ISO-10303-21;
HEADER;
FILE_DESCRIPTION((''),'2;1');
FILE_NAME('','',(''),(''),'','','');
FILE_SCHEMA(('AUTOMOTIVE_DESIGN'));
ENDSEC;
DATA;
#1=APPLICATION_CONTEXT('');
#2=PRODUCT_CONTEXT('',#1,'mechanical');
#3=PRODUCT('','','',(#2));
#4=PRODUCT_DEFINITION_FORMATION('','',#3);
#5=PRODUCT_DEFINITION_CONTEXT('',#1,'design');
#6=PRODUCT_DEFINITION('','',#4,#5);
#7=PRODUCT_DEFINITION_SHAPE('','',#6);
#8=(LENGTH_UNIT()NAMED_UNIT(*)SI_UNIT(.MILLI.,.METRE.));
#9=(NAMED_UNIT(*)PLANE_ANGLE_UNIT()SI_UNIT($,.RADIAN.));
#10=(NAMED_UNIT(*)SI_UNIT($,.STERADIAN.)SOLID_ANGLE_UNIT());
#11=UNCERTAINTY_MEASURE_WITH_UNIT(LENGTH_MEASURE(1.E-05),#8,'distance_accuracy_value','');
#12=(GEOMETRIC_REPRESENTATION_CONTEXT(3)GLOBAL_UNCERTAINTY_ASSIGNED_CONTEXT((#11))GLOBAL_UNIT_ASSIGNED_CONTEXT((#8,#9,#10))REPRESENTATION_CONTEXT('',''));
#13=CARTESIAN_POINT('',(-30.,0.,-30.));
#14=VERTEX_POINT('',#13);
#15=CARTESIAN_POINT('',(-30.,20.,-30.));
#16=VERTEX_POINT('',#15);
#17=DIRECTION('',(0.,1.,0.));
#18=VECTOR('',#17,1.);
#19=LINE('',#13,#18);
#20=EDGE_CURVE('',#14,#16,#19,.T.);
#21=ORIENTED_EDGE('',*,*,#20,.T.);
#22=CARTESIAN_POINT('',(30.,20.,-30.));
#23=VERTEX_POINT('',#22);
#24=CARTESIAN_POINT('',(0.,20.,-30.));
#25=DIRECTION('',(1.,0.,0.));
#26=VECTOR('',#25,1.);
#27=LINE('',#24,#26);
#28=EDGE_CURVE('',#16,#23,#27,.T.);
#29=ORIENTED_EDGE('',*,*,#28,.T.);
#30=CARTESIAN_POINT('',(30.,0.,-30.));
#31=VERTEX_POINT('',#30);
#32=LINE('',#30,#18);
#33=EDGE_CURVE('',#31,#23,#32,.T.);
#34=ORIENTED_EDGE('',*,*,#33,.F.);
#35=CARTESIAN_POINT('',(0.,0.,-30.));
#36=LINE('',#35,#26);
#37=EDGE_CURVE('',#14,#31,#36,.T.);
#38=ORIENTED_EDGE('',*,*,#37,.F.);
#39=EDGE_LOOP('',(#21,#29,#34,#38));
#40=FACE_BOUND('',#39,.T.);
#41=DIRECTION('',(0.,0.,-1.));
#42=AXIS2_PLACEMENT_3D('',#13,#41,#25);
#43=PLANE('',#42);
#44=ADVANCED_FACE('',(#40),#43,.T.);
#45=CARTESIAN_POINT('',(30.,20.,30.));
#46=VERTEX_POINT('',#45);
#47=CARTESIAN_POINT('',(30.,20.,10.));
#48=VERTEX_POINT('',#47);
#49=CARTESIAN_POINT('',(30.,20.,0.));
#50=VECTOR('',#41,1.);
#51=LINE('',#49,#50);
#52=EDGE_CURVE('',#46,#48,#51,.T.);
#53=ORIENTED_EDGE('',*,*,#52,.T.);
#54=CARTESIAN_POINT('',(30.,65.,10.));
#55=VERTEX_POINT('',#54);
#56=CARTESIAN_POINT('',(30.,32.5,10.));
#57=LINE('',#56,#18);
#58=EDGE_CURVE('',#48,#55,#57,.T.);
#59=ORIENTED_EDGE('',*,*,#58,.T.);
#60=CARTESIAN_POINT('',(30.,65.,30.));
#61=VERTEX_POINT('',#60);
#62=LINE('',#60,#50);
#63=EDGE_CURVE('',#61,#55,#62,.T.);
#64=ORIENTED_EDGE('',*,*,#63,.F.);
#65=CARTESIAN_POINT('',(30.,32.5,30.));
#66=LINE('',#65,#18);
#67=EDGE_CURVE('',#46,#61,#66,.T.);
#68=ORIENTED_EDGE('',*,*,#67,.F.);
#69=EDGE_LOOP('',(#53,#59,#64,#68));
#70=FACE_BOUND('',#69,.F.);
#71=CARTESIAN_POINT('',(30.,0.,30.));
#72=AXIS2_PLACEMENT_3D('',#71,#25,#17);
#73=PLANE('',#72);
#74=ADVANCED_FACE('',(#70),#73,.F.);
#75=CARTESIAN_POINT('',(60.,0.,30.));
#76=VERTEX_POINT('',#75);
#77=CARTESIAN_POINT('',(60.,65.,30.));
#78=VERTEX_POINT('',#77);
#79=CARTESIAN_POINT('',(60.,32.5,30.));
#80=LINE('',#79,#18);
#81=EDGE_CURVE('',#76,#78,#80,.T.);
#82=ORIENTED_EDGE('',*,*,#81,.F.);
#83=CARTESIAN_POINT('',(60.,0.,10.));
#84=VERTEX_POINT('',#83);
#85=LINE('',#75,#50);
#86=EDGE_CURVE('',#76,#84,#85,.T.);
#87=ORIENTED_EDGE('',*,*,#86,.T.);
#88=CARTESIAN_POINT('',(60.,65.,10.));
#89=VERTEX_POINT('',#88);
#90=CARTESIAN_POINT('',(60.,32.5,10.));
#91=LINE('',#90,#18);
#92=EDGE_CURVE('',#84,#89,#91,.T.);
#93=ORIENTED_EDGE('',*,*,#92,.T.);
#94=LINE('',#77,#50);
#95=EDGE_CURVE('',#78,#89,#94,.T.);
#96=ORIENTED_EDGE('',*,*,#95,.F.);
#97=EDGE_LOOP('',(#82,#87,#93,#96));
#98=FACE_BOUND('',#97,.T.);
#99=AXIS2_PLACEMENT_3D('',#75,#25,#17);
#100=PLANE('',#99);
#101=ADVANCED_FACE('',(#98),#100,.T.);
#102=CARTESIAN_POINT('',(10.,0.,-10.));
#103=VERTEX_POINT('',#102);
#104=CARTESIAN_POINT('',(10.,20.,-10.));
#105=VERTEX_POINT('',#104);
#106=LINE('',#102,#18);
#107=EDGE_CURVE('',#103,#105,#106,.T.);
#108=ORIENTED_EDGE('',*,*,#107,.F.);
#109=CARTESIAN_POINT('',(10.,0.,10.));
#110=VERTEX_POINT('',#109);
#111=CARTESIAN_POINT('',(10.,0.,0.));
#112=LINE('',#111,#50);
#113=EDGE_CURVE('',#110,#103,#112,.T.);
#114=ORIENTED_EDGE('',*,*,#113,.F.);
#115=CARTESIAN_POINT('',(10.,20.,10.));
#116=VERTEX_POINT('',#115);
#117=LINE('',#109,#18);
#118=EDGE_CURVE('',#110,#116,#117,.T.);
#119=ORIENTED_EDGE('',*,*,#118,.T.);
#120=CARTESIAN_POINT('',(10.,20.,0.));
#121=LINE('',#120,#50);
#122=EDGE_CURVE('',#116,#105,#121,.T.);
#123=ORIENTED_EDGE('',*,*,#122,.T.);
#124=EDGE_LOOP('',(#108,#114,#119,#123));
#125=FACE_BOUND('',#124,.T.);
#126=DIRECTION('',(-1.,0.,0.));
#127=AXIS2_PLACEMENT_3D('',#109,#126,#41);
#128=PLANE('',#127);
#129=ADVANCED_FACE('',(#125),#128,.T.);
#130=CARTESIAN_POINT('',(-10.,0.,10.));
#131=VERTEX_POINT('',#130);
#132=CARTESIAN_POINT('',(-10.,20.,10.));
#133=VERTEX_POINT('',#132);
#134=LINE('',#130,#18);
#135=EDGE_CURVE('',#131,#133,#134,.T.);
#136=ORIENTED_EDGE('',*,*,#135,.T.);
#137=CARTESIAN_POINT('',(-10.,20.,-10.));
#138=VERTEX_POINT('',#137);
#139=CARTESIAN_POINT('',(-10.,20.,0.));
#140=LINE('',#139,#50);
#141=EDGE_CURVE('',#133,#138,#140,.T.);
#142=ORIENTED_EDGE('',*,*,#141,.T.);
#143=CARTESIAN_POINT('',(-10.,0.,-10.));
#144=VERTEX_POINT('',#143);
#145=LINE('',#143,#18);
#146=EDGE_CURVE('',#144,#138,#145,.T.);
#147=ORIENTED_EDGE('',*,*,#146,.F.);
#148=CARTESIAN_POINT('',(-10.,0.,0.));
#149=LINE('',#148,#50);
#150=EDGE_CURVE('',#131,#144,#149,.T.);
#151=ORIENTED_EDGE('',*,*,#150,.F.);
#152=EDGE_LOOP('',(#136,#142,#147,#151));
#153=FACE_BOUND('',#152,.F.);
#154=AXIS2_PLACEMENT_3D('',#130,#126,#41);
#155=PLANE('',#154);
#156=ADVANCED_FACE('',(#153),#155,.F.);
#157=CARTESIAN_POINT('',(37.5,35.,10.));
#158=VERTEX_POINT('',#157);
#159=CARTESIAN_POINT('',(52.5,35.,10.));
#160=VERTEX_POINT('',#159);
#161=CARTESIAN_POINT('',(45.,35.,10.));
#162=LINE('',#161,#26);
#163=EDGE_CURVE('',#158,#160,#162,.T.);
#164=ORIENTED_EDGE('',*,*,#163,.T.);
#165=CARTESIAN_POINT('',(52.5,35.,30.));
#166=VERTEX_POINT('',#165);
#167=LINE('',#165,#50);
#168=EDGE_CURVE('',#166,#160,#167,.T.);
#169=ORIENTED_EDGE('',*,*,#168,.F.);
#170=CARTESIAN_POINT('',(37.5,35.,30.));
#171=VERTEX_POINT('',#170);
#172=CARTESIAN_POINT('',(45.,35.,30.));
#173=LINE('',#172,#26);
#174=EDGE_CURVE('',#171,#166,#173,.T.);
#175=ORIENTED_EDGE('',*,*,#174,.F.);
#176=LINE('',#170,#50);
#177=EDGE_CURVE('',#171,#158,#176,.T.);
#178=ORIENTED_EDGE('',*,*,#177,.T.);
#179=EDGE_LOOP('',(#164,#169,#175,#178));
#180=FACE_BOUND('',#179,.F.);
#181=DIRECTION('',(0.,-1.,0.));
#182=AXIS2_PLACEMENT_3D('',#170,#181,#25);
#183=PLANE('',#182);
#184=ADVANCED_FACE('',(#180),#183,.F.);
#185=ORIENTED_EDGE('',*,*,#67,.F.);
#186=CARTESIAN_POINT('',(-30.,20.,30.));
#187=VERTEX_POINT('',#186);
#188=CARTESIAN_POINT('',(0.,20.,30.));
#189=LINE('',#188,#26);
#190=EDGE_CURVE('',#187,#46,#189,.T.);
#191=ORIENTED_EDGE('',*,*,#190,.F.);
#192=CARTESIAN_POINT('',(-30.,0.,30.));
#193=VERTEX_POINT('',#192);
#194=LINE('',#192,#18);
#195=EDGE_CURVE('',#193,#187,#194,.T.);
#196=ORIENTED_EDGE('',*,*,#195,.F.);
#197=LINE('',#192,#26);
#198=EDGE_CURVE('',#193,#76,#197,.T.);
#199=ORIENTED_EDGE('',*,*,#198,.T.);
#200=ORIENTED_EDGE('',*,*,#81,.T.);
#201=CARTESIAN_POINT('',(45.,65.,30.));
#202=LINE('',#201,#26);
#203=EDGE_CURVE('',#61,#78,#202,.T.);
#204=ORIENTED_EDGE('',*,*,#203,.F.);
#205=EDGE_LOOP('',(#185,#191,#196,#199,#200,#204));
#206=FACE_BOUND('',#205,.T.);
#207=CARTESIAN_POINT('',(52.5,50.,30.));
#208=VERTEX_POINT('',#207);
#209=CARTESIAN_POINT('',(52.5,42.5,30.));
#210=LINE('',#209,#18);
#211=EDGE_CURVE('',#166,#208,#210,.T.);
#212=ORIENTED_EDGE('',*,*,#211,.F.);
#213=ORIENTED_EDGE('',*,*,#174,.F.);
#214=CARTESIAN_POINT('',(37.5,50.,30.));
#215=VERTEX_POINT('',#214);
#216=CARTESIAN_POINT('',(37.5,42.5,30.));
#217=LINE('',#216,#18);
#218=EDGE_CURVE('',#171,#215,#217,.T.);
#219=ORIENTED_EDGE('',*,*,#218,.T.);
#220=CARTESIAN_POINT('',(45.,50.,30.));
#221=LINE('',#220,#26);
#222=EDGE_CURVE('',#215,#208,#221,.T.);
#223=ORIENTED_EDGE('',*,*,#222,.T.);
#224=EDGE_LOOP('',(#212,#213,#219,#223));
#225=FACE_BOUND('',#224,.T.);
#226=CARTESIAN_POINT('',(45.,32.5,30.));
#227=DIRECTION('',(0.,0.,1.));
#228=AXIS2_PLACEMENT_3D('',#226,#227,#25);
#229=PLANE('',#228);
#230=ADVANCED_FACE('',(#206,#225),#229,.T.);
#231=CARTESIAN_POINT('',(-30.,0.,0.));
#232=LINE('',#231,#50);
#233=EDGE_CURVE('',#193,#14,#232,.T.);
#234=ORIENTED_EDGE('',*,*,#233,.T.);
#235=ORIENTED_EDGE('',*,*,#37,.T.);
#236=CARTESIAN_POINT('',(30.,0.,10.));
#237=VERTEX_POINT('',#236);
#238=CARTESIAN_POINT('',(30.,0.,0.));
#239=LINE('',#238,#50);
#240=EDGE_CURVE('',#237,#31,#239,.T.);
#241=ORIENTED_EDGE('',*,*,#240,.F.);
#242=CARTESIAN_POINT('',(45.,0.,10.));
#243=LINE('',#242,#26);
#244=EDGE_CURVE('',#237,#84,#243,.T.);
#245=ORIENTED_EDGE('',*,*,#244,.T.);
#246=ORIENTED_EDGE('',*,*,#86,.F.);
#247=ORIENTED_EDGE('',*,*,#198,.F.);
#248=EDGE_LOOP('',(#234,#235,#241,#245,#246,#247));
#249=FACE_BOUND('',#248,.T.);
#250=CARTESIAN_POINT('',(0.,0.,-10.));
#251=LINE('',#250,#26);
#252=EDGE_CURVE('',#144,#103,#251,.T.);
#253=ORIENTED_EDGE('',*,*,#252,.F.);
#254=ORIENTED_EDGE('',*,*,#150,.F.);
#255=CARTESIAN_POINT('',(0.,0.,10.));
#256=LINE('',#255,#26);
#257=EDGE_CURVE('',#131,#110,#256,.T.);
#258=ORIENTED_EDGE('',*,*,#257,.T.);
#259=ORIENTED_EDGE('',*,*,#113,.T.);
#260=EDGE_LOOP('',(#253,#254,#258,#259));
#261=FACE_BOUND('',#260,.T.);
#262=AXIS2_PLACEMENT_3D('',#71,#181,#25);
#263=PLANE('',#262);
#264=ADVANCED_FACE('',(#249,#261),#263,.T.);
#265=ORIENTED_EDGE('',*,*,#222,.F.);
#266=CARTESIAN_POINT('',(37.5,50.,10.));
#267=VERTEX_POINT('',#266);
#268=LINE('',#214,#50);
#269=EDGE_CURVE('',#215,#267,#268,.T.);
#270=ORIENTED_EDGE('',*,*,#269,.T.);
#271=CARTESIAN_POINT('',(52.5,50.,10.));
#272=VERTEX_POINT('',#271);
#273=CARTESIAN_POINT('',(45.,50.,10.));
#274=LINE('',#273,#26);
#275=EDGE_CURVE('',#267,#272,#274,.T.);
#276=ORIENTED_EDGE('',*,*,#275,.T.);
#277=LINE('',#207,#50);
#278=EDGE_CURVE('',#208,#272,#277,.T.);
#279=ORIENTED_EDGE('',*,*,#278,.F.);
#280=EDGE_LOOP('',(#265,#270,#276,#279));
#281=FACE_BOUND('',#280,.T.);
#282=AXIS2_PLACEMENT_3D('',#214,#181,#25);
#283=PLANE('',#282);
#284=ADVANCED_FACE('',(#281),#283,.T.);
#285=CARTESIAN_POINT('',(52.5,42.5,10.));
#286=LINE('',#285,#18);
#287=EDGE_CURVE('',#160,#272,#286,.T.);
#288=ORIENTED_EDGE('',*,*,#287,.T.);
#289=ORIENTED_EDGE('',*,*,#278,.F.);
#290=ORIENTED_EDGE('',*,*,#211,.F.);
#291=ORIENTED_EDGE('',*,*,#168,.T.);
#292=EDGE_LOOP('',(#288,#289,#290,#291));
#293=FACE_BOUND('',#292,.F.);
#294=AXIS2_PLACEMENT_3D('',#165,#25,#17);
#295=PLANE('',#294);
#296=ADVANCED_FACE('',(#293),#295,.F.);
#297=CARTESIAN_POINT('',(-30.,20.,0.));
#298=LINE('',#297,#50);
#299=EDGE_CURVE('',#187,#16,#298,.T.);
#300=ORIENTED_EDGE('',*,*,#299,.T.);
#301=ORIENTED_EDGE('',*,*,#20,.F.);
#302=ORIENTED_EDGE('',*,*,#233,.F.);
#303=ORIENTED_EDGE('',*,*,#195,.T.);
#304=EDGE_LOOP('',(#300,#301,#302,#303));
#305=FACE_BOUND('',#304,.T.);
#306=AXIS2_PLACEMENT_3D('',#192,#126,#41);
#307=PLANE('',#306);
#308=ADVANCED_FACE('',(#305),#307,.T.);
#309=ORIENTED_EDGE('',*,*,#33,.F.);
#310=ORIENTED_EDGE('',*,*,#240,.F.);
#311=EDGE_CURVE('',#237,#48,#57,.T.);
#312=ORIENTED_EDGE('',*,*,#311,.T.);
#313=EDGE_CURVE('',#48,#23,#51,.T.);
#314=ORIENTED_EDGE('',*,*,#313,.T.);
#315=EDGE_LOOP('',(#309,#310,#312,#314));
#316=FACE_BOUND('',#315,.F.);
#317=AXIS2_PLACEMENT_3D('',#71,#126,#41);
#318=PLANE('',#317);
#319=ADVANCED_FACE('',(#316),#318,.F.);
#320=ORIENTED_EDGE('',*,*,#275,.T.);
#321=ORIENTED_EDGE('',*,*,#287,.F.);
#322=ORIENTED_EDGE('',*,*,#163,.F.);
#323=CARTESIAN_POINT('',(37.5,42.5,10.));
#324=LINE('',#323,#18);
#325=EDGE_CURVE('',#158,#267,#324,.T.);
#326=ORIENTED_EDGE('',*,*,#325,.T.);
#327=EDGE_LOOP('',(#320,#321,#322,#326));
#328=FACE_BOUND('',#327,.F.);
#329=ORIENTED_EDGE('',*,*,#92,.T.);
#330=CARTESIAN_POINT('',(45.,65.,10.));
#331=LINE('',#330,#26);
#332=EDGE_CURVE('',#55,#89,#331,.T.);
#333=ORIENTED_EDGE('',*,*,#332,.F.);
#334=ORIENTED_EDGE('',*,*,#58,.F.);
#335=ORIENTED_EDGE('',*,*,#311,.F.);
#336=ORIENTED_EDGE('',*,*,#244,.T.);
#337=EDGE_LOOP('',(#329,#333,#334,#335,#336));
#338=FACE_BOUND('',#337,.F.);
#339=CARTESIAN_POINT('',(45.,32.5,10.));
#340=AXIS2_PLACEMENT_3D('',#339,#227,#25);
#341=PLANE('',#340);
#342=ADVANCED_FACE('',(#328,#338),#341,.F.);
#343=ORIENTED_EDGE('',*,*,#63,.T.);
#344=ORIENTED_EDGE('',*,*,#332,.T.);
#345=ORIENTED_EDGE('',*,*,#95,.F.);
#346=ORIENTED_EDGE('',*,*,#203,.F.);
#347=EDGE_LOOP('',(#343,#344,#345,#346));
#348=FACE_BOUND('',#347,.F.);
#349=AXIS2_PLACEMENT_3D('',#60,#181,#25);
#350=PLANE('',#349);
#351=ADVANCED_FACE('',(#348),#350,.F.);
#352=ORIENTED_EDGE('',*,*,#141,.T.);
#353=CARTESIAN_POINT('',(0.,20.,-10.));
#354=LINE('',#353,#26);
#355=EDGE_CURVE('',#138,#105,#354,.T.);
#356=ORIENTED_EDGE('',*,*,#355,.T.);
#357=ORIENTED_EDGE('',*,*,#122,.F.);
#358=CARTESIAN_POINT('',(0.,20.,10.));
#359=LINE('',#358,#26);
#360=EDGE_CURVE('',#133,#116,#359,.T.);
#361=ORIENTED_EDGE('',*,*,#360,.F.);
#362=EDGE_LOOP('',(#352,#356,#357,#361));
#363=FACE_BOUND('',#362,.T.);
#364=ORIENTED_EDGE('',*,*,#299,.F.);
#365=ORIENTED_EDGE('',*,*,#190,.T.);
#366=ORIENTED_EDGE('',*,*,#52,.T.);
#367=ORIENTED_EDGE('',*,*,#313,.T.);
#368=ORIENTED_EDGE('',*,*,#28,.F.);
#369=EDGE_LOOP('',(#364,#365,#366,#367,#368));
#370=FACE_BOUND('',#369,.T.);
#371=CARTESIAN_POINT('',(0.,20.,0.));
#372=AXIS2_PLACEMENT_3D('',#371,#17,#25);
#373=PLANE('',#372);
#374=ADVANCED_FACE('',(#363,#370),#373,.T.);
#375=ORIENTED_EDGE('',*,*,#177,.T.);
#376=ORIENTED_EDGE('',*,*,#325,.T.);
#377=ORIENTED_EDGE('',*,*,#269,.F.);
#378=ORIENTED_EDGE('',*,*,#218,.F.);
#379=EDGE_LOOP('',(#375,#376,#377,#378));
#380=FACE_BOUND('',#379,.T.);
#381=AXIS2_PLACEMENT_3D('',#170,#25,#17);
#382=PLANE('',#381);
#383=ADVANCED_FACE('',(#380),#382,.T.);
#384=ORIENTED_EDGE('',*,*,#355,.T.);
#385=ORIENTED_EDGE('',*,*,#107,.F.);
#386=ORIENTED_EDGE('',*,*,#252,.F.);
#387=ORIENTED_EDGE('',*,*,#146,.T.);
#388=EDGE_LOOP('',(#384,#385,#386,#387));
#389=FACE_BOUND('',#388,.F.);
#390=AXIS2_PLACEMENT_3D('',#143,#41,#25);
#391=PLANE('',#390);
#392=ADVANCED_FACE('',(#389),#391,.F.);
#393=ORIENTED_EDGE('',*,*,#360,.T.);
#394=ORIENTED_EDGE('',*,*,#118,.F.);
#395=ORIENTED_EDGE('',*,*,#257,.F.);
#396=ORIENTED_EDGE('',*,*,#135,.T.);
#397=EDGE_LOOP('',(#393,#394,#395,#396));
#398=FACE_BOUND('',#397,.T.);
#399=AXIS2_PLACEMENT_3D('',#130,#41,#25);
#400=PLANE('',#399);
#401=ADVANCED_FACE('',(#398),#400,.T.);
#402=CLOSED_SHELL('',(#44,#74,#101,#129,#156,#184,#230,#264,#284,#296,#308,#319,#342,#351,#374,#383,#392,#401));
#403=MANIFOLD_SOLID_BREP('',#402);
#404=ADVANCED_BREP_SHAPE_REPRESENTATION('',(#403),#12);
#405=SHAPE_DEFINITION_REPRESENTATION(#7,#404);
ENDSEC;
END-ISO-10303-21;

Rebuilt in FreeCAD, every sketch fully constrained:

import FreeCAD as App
import Part
import Sketcher
from FreeCAD import Vector
Q = App.Units.Quantity

doc = App.newDocument("Part")
body = doc.addObject("PartDesign::Body", "Body")

sketch1 = body.newObject("Sketcher::SketchObject", "Sketch")
sketch1.AttachmentSupport = (doc.getObject("XZ_Plane"), [""])
sketch1.MapMode = "FlatFace"
sketch1.addGeometry([
    Part.LineSegment(Vector(-30, -30, 0), Vector(-30, 30, 0)),
    Part.LineSegment(Vector(-30, 30, 0), Vector(30, 30, 0)),
    Part.LineSegment(Vector(30, 30, 0), Vector(30, -30, 0)),
    Part.LineSegment(Vector(30, -30, 0), Vector(-30, -30, 0)),
    Part.LineSegment(Vector(10, 10, 0), Vector(-10, 10, 0)),
    Part.LineSegment(Vector(-10, 10, 0), Vector(-10, -10, 0)),
    Part.LineSegment(Vector(-10, -10, 0), Vector(10, -10, 0)),
    Part.LineSegment(Vector(10, -10, 0), Vector(10, 10, 0)),
], False)
sketch1.addConstraint([
    Sketcher.Constraint("Coincident", 0, 2, 1, 1),
    Sketcher.Constraint("Coincident", 1, 2, 2, 1),
    Sketcher.Constraint("Coincident", 2, 2, 3, 1),
    Sketcher.Constraint("Coincident", 3, 2, 0, 1),
    Sketcher.Constraint("Coincident", 4, 2, 5, 1),
    Sketcher.Constraint("Coincident", 5, 2, 6, 1),
    Sketcher.Constraint("Coincident", 6, 2, 7, 1),
    Sketcher.Constraint("Coincident", 7, 2, 4, 1),
    Sketcher.Constraint("Vertical", 0),
    Sketcher.Constraint("Horizontal", 1),
    Sketcher.Constraint("Vertical", 2),
    Sketcher.Constraint("Horizontal", 3),
    Sketcher.Constraint("Horizontal", 4),
    Sketcher.Constraint("Vertical", 5),
    Sketcher.Constraint("Horizontal", 6),
    Sketcher.Constraint("Vertical", 7),
    Sketcher.Constraint("Symmetric", 0, 2, 2, 2, -1, 1),
    Sketcher.Constraint("Symmetric", 4, 2, 6, 2, -1, 1),
    Sketcher.Constraint("Equal", 3, 0),
    Sketcher.Constraint("Equal", 6, 5),
    Sketcher.Constraint("DistanceX", 1, 1, 1, 2, Q("60 mm")),
    Sketcher.Constraint("DistanceX", 4, 2, 4, 1, Q("20 mm")),
])
pad1 = body.newObject("PartDesign::Pad", "Pad")
pad1.Profile = sketch1
pad1.Length = 20
pad1.Reversed = True

sketch2 = body.newObject("Sketcher::SketchObject", "Sketch001")
sketch2.AttachmentSupport = (doc.getObject("XY_Plane"), [""])
sketch2.MapMode = "FlatFace"
sketch2.AttachmentOffset = App.Placement(Vector(0, 0, 30), App.Rotation())
sketch2.addGeometry([
    Part.LineSegment(Vector(30, 65, 0), Vector(30, 0, 0)),
    Part.LineSegment(Vector(30, 0, 0), Vector(60, 0, 0)),
    Part.LineSegment(Vector(60, 0, 0), Vector(60, 65, 0)),
    Part.LineSegment(Vector(60, 65, 0), Vector(30, 65, 0)),
    Part.LineSegment(Vector(52.5, 35, 0), Vector(37.5, 35, 0)),
    Part.LineSegment(Vector(37.5, 35, 0), Vector(37.5, 50, 0)),
    Part.LineSegment(Vector(37.5, 50, 0), Vector(52.5, 50, 0)),
    Part.LineSegment(Vector(52.5, 50, 0), Vector(52.5, 35, 0)),
], False)
sketch2.addConstraint([
    Sketcher.Constraint("Coincident", 0, 2, 1, 1),
    Sketcher.Constraint("Coincident", 1, 2, 2, 1),
    Sketcher.Constraint("Coincident", 2, 2, 3, 1),
    Sketcher.Constraint("Coincident", 3, 2, 0, 1),
    Sketcher.Constraint("Coincident", 4, 2, 5, 1),
    Sketcher.Constraint("Coincident", 5, 2, 6, 1),
    Sketcher.Constraint("Coincident", 6, 2, 7, 1),
    Sketcher.Constraint("Coincident", 7, 2, 4, 1),
    Sketcher.Constraint("Vertical", 0),
    Sketcher.Constraint("Horizontal", 1),
    Sketcher.Constraint("Vertical", 2),
    Sketcher.Constraint("Horizontal", 3),
    Sketcher.Constraint("Horizontal", 4),
    Sketcher.Constraint("Vertical", 5),
    Sketcher.Constraint("Horizontal", 6),
    Sketcher.Constraint("Vertical", 7),
    Sketcher.Constraint("PointOnObject", 0, 2, -1),
    Sketcher.Constraint("Equal", 6, 5),
    Sketcher.Constraint("DistanceX", 1, 1, 1, 2, Q("30 mm")),
    Sketcher.Constraint("DistanceX", 4, 2, 4, 1, Q("15 mm")),
    Sketcher.Constraint("DistanceY", 0, 2, 0, 1, Q("65 mm")),
    Sketcher.Constraint("DistanceX", -1, 1, 0, 2, Q("30 mm")),
    Sketcher.Constraint("DistanceY", -1, 1, 4, 2, Q("35 mm")),
    Sketcher.Constraint("DistanceX", -1, 1, 4, 2, Q("37.5 mm")),
])
pad2 = body.newObject("PartDesign::Pad", "Pad001")
pad2.Profile = sketch2
pad2.Length = 20
pad2.Reversed = True

doc.recompute()
